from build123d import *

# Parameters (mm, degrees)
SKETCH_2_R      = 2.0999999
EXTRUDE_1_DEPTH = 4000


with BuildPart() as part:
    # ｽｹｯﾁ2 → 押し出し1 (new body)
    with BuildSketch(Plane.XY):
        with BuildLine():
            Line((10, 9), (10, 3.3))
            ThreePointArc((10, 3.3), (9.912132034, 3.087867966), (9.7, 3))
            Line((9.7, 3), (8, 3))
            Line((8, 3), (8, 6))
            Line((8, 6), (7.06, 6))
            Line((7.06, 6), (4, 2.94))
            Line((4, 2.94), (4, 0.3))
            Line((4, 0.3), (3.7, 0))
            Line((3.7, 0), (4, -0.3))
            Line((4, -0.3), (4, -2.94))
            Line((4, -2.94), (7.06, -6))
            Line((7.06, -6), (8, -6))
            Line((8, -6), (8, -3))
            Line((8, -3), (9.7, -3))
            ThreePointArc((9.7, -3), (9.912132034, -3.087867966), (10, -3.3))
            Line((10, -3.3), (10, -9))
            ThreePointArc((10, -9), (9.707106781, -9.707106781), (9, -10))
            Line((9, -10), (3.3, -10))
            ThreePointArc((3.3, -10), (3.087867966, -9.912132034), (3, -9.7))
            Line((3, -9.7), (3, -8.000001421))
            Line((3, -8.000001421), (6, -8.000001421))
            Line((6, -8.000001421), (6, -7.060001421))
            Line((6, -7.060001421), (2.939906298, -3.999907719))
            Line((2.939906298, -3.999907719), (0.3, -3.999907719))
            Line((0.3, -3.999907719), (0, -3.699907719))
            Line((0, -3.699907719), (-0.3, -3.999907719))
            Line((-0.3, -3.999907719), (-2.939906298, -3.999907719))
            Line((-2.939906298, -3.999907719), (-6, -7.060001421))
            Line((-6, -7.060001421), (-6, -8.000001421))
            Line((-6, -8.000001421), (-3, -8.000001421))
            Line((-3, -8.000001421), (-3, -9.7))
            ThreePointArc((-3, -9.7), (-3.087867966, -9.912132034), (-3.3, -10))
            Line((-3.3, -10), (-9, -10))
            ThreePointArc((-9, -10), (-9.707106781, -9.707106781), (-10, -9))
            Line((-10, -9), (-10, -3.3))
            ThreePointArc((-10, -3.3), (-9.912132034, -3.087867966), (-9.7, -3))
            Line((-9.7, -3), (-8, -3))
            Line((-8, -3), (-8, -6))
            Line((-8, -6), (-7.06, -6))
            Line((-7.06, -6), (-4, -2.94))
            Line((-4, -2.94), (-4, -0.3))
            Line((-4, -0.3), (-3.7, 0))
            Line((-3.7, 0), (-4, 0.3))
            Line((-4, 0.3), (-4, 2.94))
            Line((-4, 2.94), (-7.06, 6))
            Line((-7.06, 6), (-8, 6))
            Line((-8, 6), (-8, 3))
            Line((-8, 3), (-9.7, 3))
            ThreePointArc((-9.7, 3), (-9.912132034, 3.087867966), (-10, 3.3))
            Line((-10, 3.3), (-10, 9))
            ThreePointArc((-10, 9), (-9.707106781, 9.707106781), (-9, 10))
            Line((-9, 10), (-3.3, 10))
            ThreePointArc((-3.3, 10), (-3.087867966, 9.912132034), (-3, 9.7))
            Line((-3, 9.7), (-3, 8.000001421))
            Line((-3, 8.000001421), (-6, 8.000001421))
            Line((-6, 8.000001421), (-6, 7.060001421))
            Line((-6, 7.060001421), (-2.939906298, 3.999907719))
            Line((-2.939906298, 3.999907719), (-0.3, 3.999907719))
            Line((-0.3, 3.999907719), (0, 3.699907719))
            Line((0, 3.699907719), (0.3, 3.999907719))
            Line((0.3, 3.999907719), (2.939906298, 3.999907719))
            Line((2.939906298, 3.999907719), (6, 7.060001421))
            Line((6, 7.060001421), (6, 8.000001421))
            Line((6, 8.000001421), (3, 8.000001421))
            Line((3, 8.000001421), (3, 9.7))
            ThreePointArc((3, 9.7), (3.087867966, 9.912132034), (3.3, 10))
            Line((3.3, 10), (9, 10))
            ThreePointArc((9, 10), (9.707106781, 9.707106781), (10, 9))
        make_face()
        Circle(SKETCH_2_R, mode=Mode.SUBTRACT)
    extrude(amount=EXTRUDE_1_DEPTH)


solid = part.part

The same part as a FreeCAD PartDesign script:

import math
import FreeCAD as App
import Part
import Sketcher

V = App.Vector
Q = App.Units.Quantity

doc = App.newDocument("Part")
body = doc.addObject("PartDesign::Body", "Body")

# Sketch on XY plane
sketch1 = doc.addObject("Sketcher::SketchObject", "Sketch")
body.addObject(sketch1)
sketch1.AttachmentSupport = (doc.XY_Plane, [""])
sketch1.MapMode = "FlatFace"
sketch1.addGeometry([
    Part.LineSegment(V(10, 3.3, 0), V(10, 9, 0)),  # 0
    Part.ArcOfCircle(Part.Circle(V(9, 9, 0), V(0, 0, 1), 1), math.radians(0), math.radians(90)),  # 1
    Part.LineSegment(V(9, 10, 0), V(3.3, 10, 0)),  # 2
    Part.ArcOfCircle(Part.Circle(V(3.3, 9.7, 0), V(0, 0, 1), 0.3), math.radians(90), math.radians(180)),  # 3
    Part.LineSegment(V(3, 9.7, 0), V(3, 8, 0)),  # 4
    Part.LineSegment(V(3, 8, 0), V(6, 8, 0)),  # 5
    Part.LineSegment(V(6, 8, 0), V(6, 7.06, 0)),  # 6
    Part.LineSegment(V(6, 7.06, 0), V(2.94, 4, 0)),  # 7
    Part.LineSegment(V(2.94, 4, 0), V(0.3, 4, 0)),  # 8
    Part.LineSegment(V(0.3, 4, 0), V(0, 3.7, 0)),  # 9
    Part.LineSegment(V(0, 3.7, 0), V(-0.3, 4, 0)),  # 10
    Part.LineSegment(V(-0.3, 4, 0), V(-2.94, 4, 0)),  # 11
    Part.LineSegment(V(-2.94, 4, 0), V(-6, 7.06, 0)),  # 12
    Part.LineSegment(V(-6, 7.06, 0), V(-6, 8, 0)),  # 13
    Part.LineSegment(V(-6, 8, 0), V(-3, 8, 0)),  # 14
    Part.LineSegment(V(-3, 8, 0), V(-3, 9.7, 0)),  # 15
    Part.ArcOfCircle(Part.Circle(V(-3.3, 9.7, 0), V(0, 0, 1), 0.3), math.radians(0), math.radians(90)),  # 16
    Part.LineSegment(V(-3.3, 10, 0), V(-9, 10, 0)),  # 17
    Part.ArcOfCircle(Part.Circle(V(-9, 9, 0), V(0, 0, 1), 1), math.radians(90), math.radians(180)),  # 18
    Part.LineSegment(V(-10, 9, 0), V(-10, 3.3, 0)),  # 19
    Part.ArcOfCircle(Part.Circle(V(-9.7, 3.3, 0), V(0, 0, 1), 0.3), math.radians(-180), math.radians(-90)),  # 20
    Part.LineSegment(V(-9.7, 3, 0), V(-8, 3, 0)),  # 21
    Part.LineSegment(V(-8, 3, 0), V(-8, 6, 0)),  # 22
    Part.LineSegment(V(-8, 6, 0), V(-7.06, 6, 0)),  # 23
    Part.LineSegment(V(-7.06, 6, 0), V(-4, 2.94, 0)),  # 24
    Part.LineSegment(V(-4, 2.94, 0), V(-4, 0.3, 0)),  # 25
    Part.LineSegment(V(-4, 0.3, 0), V(-3.7, 0, 0)),  # 26
    Part.LineSegment(V(-3.7, 0, 0), V(-4, -0.3, 0)),  # 27
    Part.LineSegment(V(-4, -0.3, 0), V(-4, -2.94, 0)),  # 28
    Part.LineSegment(V(-4, -2.94, 0), V(-7.06, -6, 0)),  # 29
    Part.LineSegment(V(-7.06, -6, 0), V(-8, -6, 0)),  # 30
    Part.LineSegment(V(-8, -6, 0), V(-8, -3, 0)),  # 31
    Part.LineSegment(V(-8, -3, 0), V(-9.7, -3, 0)),  # 32
    Part.ArcOfCircle(Part.Circle(V(-9.7, -3.3, 0), V(0, 0, 1), 0.3), math.radians(90), math.radians(180)),  # 33
    Part.LineSegment(V(-10, -3.3, 0), V(-10, -9, 0)),  # 34
    Part.ArcOfCircle(Part.Circle(V(-9, -9, 0), V(0, 0, 1), 1), math.radians(-180), math.radians(-90)),  # 35
    Part.LineSegment(V(-9, -10, 0), V(-3.3, -10, 0)),  # 36
    Part.ArcOfCircle(Part.Circle(V(-3.3, -9.7, 0), V(0, 0, 1), 0.3), math.radians(-90), math.radians(0)),  # 37
    Part.LineSegment(V(-3, -9.7, 0), V(-3, -8, 0)),  # 38
    Part.LineSegment(V(-3, -8, 0), V(-6, -8, 0)),  # 39
    Part.LineSegment(V(-6, -8, 0), V(-6, -7.06, 0)),  # 40
    Part.LineSegment(V(-6, -7.06, 0), V(-2.94, -4, 0)),  # 41
    Part.LineSegment(V(-2.94, -4, 0), V(-0.3, -4, 0)),  # 42
    Part.LineSegment(V(-0.3, -4, 0), V(0, -3.7, 0)),  # 43
    Part.LineSegment(V(0, -3.7, 0), V(0.3, -4, 0)),  # 44
    Part.LineSegment(V(0.3, -4, 0), V(2.94, -4, 0)),  # 45
    Part.LineSegment(V(2.94, -4, 0), V(6, -7.06, 0)),  # 46
    Part.LineSegment(V(6, -7.06, 0), V(6, -8, 0)),  # 47
    Part.LineSegment(V(6, -8, 0), V(3, -8, 0)),  # 48
    Part.LineSegment(V(3, -8, 0), V(3, -9.7, 0)),  # 49
    Part.ArcOfCircle(Part.Circle(V(3.3, -9.7, 0), V(0, 0, 1), 0.3), math.radians(-180), math.radians(-90)),  # 50
    Part.LineSegment(V(3.3, -10, 0), V(9, -10, 0)),  # 51
    Part.ArcOfCircle(Part.Circle(V(9, -9, 0), V(0, 0, 1), 1), math.radians(-90), math.radians(0)),  # 52
    Part.LineSegment(V(10, -9, 0), V(10, -3.3, 0)),  # 53
    Part.ArcOfCircle(Part.Circle(V(9.7, -3.3, 0), V(0, 0, 1), 0.3), math.radians(0), math.radians(90)),  # 54
    Part.LineSegment(V(9.7, -3, 0), V(8, -3, 0)),  # 55
    Part.LineSegment(V(8, -3, 0), V(8, -6, 0)),  # 56
    Part.LineSegment(V(8, -6, 0), V(7.06, -6, 0)),  # 57
    Part.LineSegment(V(7.06, -6, 0), V(4, -2.94, 0)),  # 58
    Part.LineSegment(V(4, -2.94, 0), V(4, -0.3, 0)),  # 59
    Part.LineSegment(V(4, -0.3, 0), V(3.7, 0, 0)),  # 60
    Part.LineSegment(V(3.7, 0, 0), V(4, 0.3, 0)),  # 61
    Part.LineSegment(V(4, 0.3, 0), V(4, 2.94, 0)),  # 62
    Part.LineSegment(V(4, 2.94, 0), V(7.06, 6, 0)),  # 63
    Part.LineSegment(V(7.06, 6, 0), V(8, 6, 0)),  # 64
    Part.LineSegment(V(8, 6, 0), V(8, 3, 0)),  # 65
    Part.LineSegment(V(8, 3, 0), V(9.7, 3, 0)),  # 66
    Part.ArcOfCircle(Part.Circle(V(9.7, 3.3, 0), V(0, 0, 1), 0.3), math.radians(-90), math.radians(0)),  # 67
    Part.Circle(V(0, 0, 0), V(0, 0, 1), 2.1),  # 68
], False)
sketch1.addConstraint([
    Sketcher.Constraint("Tangent", 0, 2, 1, 1),
    Sketcher.Constraint("Tangent", 1, 2, 2, 1),
    Sketcher.Constraint("Tangent", 2, 2, 3, 1),
    Sketcher.Constraint("Tangent", 3, 2, 4, 1),
    Sketcher.Constraint("Coincident", 4, 2, 5, 1),
    Sketcher.Constraint("Coincident", 5, 2, 6, 1),
    Sketcher.Constraint("Coincident", 6, 2, 7, 1),
    Sketcher.Constraint("Coincident", 7, 2, 8, 1),
    Sketcher.Constraint("Coincident", 8, 2, 9, 1),
    Sketcher.Constraint("Coincident", 9, 2, 10, 1),
    Sketcher.Constraint("Coincident", 10, 2, 11, 1),
    Sketcher.Constraint("Coincident", 11, 2, 12, 1),
    Sketcher.Constraint("Coincident", 12, 2, 13, 1),
    Sketcher.Constraint("Coincident", 13, 2, 14, 1),
    Sketcher.Constraint("Coincident", 14, 2, 15, 1),
    Sketcher.Constraint("Tangent", 15, 2, 16, 1),
    Sketcher.Constraint("Tangent", 16, 2, 17, 1),
    Sketcher.Constraint("Tangent", 17, 2, 18, 1),
    Sketcher.Constraint("Tangent", 18, 2, 19, 1),
    Sketcher.Constraint("Tangent", 19, 2, 20, 1),
    Sketcher.Constraint("Tangent", 20, 2, 21, 1),
    Sketcher.Constraint("Coincident", 21, 2, 22, 1),
    Sketcher.Constraint("Coincident", 22, 2, 23, 1),
    Sketcher.Constraint("Coincident", 23, 2, 24, 1),
    Sketcher.Constraint("Coincident", 24, 2, 25, 1),
    Sketcher.Constraint("Coincident", 25, 2, 26, 1),
    Sketcher.Constraint("Coincident", 26, 2, 27, 1),
    Sketcher.Constraint("Coincident", 27, 2, 28, 1),
    Sketcher.Constraint("Coincident", 28, 2, 29, 1),
    Sketcher.Constraint("Coincident", 29, 2, 30, 1),
    Sketcher.Constraint("Coincident", 30, 2, 31, 1),
    Sketcher.Constraint("Coincident", 31, 2, 32, 1),
    Sketcher.Constraint("Tangent", 32, 2, 33, 1),
    Sketcher.Constraint("Tangent", 33, 2, 34, 1),
    Sketcher.Constraint("Tangent", 34, 2, 35, 1),
    Sketcher.Constraint("Tangent", 35, 2, 36, 1),
    Sketcher.Constraint("Tangent", 36, 2, 37, 1),
    Sketcher.Constraint("Tangent", 37, 2, 38, 1),
    Sketcher.Constraint("Coincident", 38, 2, 39, 1),
    Sketcher.Constraint("Coincident", 39, 2, 40, 1),
    Sketcher.Constraint("Coincident", 40, 2, 41, 1),
    Sketcher.Constraint("Coincident", 41, 2, 42, 1),
    Sketcher.Constraint("Coincident", 42, 2, 43, 1),
    Sketcher.Constraint("Coincident", 43, 2, 44, 1),
    Sketcher.Constraint("Coincident", 44, 2, 45, 1),
    Sketcher.Constraint("Coincident", 45, 2, 46, 1),
    Sketcher.Constraint("Coincident", 46, 2, 47, 1),
    Sketcher.Constraint("Coincident", 47, 2, 48, 1),
    Sketcher.Constraint("Coincident", 48, 2, 49, 1),
    Sketcher.Constraint("Tangent", 49, 2, 50, 1),
    Sketcher.Constraint("Tangent", 50, 2, 51, 1),
    Sketcher.Constraint("Tangent", 51, 2, 52, 1),
    Sketcher.Constraint("Tangent", 52, 2, 53, 1),
    Sketcher.Constraint("Tangent", 53, 2, 54, 1),
    Sketcher.Constraint("Tangent", 54, 2, 55, 1),
    Sketcher.Constraint("Coincident", 55, 2, 56, 1),
    Sketcher.Constraint("Coincident", 56, 2, 57, 1),
    Sketcher.Constraint("Coincident", 57, 2, 58, 1),
    Sketcher.Constraint("Coincident", 58, 2, 59, 1),
    Sketcher.Constraint("Coincident", 59, 2, 60, 1),
    Sketcher.Constraint("Coincident", 60, 2, 61, 1),
    Sketcher.Constraint("Coincident", 61, 2, 62, 1),
    Sketcher.Constraint("Coincident", 62, 2, 63, 1),
    Sketcher.Constraint("Coincident", 63, 2, 64, 1),
    Sketcher.Constraint("Coincident", 64, 2, 65, 1),
    Sketcher.Constraint("Coincident", 65, 2, 66, 1),
    Sketcher.Constraint("Tangent", 66, 2, 67, 1),
    Sketcher.Constraint("Tangent", 67, 2, 0, 1),
    Sketcher.Constraint("Vertical", 0),
    Sketcher.Constraint("Horizontal", 2),
    Sketcher.Constraint("Vertical", 4),
    Sketcher.Constraint("Horizontal", 5),
    Sketcher.Constraint("Vertical", 6),
    Sketcher.Constraint("Horizontal", 8),
    Sketcher.Constraint("Horizontal", 11),
    Sketcher.Constraint("Vertical", 13),
    Sketcher.Constraint("Horizontal", 14),
    Sketcher.Constraint("Vertical", 15),
    Sketcher.Constraint("Horizontal", 17),
    Sketcher.Constraint("Vertical", 19),
    Sketcher.Constraint("Horizontal", 21),
    Sketcher.Constraint("Vertical", 22),
    Sketcher.Constraint("Horizontal", 23),
    Sketcher.Constraint("Vertical", 25),
    Sketcher.Constraint("Vertical", 28),
    Sketcher.Constraint("Horizontal", 30),
    Sketcher.Constraint("Vertical", 31),
    Sketcher.Constraint("Horizontal", 32),
    Sketcher.Constraint("Vertical", 34),
    Sketcher.Constraint("Horizontal", 36),
    Sketcher.Constraint("Vertical", 38),
    Sketcher.Constraint("Horizontal", 39),
    Sketcher.Constraint("Vertical", 40),
    Sketcher.Constraint("Horizontal", 42),
    Sketcher.Constraint("Horizontal", 45),
    Sketcher.Constraint("Vertical", 47),
    Sketcher.Constraint("Horizontal", 48),
    Sketcher.Constraint("Vertical", 49),
    Sketcher.Constraint("Horizontal", 51),
    Sketcher.Constraint("Vertical", 53),
    Sketcher.Constraint("Horizontal", 55),
    Sketcher.Constraint("Vertical", 56),
    Sketcher.Constraint("Horizontal", 57),
    Sketcher.Constraint("Vertical", 59),
    Sketcher.Constraint("Vertical", 62),
    Sketcher.Constraint("Horizontal", 64),
    Sketcher.Constraint("Vertical", 65),
    Sketcher.Constraint("Horizontal", 66),
    Sketcher.Constraint("Coincident", 68, 3, -1, 1),
    Sketcher.Constraint("Equal", 3, 16),
    Sketcher.Constraint("Equal", 1, 18),
    Sketcher.Constraint("Equal", 16, 20),
    Sketcher.Constraint("Equal", 20, 33),
    Sketcher.Constraint("Equal", 18, 35),
    Sketcher.Constraint("Equal", 33, 37),
    Sketcher.Constraint("Equal", 37, 50),
    Sketcher.Constraint("Equal", 35, 52),
    Sketcher.Constraint("Equal", 50, 54),
    Sketcher.Constraint("Equal", 54, 67),
    Sketcher.Constraint("Symmetric", 1, 3, 35, 3, -1, 1),
    Sketcher.Constraint("Symmetric", 16, 3, 50, 3, -1, 1),
    Sketcher.Constraint("Symmetric", 20, 3, 54, 3, -1, 1),
    Sketcher.Constraint("Symmetric", 4, 2, 38, 2, -1, 1),
    Sketcher.Constraint("Symmetric", 6, 2, 40, 2, -1, 1),
    Sketcher.Constraint("Symmetric", 7, 2, 41, 2, -1, 1),
    Sketcher.Constraint("Symmetric", 9, 2, 43, 2, -1, 1),
    Sketcher.Constraint("Symmetric", 10, 2, 44, 2, -1, 1),
    Sketcher.Constraint("Symmetric", 12, 2, 46, 2, -1, 1),
    Sketcher.Constraint("Symmetric", 22, 2, 56, 2, -1, 1),
    Sketcher.Constraint("Symmetric", 24, 2, 58, 2, -1, 1),
    Sketcher.Constraint("Symmetric", 26, 2, 60, 2, -1, 1),
    Sketcher.Constraint("Symmetric", 27, 2, 61, 2, -1, 1),
    Sketcher.Constraint("Symmetric", 29, 2, 63, 2, -1, 1),
    Sketcher.Constraint("Symmetric", 31, 2, 65, 2, -1, 1),
    Sketcher.Constraint("Symmetric", 3, 3, 16, 3, -2),
    Sketcher.Constraint("Symmetric", 33, 3, 54, 3, -2),
    Sketcher.Constraint("Symmetric", 8, 2, 10, 2, -2),
    Sketcher.Constraint("Symmetric", 6, 2, 12, 2, -2),
    Sketcher.Constraint("Symmetric", 30, 2, 56, 2, -2),
    Sketcher.Constraint("Symmetric", 28, 2, 58, 2, -2),
    Sketcher.Constraint("PointOnObject", 9, 2, -2),
    Sketcher.Constraint("PointOnObject", 26, 2, -1),
    Sketcher.Constraint("Parallel", 7, 9),
    Sketcher.Constraint("Perpendicular", 9, 10),
    Sketcher.Constraint("Parallel", 10, 12),
    Sketcher.Constraint("Parallel", 12, 24),
    Sketcher.Constraint("Parallel", 24, 26),
    Sketcher.Constraint("Perpendicular", 26, 27),
    Sketcher.Constraint("Parallel", 27, 29),
    Sketcher.Constraint("Parallel", 41, 43),
    Sketcher.Constraint("Parallel", 44, 46),
    Sketcher.Constraint("Parallel", 46, 58),
    Sketcher.Constraint("Parallel", 58, 60),
    Sketcher.Constraint("Parallel", 61, 63),
    Sketcher.Constraint("Horizontal", 5, 2, 13, 2),
    Sketcher.Constraint("Horizontal", 39, 2, 47, 2),
    Sketcher.Constraint("Equal", 51, 0),
    Sketcher.Constraint("Equal", 66, 4),
    Sketcher.Constraint("Equal", 64, 6),
    Sketcher.Constraint("Equal", 48, 22),
    Sketcher.Constraint("Equal", 10, 26),
    Sketcher.Constraint("Radius", 1, Q("1 mm")),
    Sketcher.Constraint("Diameter", 68, Q("4.2 mm")),
    Sketcher.Constraint("Radius", 3, Q("0.3 mm")),
    Sketcher.Constraint("DistanceX", 5, 1, 5, 2, Q("3 mm")),
    Sketcher.Constraint("DistanceX", 2, 2, 2, 1, Q("5.7 mm")),
    Sketcher.Constraint("DistanceX", 21, 1, 21, 2, Q("1.7 mm")),
    Sketcher.Constraint("DistanceX", -1, 1, 1, 3, Q("9 mm")),
    Sketcher.Constraint("DistanceY", -1, 1, 1, 3, Q("9 mm")),
    Sketcher.Constraint("DistanceX", 24, 2, -1, 1, Q("4 mm")),
    Sketcher.Constraint("DistanceX", 23, 1, 23, 2, Q("0.94 mm")),
    Sketcher.Constraint("DistanceY", 25, 2, 25, 1, Q("2.64 mm")),
    Sketcher.Constraint("DistanceX", 8, 2, 8, 1, Q("2.639906 mm")),
])
pad1 = doc.addObject("PartDesign::Pad", "Pad")
body.addObject(pad1)
pad1.Profile = sketch1
pad1.Length = 4000

doc.recompute()
